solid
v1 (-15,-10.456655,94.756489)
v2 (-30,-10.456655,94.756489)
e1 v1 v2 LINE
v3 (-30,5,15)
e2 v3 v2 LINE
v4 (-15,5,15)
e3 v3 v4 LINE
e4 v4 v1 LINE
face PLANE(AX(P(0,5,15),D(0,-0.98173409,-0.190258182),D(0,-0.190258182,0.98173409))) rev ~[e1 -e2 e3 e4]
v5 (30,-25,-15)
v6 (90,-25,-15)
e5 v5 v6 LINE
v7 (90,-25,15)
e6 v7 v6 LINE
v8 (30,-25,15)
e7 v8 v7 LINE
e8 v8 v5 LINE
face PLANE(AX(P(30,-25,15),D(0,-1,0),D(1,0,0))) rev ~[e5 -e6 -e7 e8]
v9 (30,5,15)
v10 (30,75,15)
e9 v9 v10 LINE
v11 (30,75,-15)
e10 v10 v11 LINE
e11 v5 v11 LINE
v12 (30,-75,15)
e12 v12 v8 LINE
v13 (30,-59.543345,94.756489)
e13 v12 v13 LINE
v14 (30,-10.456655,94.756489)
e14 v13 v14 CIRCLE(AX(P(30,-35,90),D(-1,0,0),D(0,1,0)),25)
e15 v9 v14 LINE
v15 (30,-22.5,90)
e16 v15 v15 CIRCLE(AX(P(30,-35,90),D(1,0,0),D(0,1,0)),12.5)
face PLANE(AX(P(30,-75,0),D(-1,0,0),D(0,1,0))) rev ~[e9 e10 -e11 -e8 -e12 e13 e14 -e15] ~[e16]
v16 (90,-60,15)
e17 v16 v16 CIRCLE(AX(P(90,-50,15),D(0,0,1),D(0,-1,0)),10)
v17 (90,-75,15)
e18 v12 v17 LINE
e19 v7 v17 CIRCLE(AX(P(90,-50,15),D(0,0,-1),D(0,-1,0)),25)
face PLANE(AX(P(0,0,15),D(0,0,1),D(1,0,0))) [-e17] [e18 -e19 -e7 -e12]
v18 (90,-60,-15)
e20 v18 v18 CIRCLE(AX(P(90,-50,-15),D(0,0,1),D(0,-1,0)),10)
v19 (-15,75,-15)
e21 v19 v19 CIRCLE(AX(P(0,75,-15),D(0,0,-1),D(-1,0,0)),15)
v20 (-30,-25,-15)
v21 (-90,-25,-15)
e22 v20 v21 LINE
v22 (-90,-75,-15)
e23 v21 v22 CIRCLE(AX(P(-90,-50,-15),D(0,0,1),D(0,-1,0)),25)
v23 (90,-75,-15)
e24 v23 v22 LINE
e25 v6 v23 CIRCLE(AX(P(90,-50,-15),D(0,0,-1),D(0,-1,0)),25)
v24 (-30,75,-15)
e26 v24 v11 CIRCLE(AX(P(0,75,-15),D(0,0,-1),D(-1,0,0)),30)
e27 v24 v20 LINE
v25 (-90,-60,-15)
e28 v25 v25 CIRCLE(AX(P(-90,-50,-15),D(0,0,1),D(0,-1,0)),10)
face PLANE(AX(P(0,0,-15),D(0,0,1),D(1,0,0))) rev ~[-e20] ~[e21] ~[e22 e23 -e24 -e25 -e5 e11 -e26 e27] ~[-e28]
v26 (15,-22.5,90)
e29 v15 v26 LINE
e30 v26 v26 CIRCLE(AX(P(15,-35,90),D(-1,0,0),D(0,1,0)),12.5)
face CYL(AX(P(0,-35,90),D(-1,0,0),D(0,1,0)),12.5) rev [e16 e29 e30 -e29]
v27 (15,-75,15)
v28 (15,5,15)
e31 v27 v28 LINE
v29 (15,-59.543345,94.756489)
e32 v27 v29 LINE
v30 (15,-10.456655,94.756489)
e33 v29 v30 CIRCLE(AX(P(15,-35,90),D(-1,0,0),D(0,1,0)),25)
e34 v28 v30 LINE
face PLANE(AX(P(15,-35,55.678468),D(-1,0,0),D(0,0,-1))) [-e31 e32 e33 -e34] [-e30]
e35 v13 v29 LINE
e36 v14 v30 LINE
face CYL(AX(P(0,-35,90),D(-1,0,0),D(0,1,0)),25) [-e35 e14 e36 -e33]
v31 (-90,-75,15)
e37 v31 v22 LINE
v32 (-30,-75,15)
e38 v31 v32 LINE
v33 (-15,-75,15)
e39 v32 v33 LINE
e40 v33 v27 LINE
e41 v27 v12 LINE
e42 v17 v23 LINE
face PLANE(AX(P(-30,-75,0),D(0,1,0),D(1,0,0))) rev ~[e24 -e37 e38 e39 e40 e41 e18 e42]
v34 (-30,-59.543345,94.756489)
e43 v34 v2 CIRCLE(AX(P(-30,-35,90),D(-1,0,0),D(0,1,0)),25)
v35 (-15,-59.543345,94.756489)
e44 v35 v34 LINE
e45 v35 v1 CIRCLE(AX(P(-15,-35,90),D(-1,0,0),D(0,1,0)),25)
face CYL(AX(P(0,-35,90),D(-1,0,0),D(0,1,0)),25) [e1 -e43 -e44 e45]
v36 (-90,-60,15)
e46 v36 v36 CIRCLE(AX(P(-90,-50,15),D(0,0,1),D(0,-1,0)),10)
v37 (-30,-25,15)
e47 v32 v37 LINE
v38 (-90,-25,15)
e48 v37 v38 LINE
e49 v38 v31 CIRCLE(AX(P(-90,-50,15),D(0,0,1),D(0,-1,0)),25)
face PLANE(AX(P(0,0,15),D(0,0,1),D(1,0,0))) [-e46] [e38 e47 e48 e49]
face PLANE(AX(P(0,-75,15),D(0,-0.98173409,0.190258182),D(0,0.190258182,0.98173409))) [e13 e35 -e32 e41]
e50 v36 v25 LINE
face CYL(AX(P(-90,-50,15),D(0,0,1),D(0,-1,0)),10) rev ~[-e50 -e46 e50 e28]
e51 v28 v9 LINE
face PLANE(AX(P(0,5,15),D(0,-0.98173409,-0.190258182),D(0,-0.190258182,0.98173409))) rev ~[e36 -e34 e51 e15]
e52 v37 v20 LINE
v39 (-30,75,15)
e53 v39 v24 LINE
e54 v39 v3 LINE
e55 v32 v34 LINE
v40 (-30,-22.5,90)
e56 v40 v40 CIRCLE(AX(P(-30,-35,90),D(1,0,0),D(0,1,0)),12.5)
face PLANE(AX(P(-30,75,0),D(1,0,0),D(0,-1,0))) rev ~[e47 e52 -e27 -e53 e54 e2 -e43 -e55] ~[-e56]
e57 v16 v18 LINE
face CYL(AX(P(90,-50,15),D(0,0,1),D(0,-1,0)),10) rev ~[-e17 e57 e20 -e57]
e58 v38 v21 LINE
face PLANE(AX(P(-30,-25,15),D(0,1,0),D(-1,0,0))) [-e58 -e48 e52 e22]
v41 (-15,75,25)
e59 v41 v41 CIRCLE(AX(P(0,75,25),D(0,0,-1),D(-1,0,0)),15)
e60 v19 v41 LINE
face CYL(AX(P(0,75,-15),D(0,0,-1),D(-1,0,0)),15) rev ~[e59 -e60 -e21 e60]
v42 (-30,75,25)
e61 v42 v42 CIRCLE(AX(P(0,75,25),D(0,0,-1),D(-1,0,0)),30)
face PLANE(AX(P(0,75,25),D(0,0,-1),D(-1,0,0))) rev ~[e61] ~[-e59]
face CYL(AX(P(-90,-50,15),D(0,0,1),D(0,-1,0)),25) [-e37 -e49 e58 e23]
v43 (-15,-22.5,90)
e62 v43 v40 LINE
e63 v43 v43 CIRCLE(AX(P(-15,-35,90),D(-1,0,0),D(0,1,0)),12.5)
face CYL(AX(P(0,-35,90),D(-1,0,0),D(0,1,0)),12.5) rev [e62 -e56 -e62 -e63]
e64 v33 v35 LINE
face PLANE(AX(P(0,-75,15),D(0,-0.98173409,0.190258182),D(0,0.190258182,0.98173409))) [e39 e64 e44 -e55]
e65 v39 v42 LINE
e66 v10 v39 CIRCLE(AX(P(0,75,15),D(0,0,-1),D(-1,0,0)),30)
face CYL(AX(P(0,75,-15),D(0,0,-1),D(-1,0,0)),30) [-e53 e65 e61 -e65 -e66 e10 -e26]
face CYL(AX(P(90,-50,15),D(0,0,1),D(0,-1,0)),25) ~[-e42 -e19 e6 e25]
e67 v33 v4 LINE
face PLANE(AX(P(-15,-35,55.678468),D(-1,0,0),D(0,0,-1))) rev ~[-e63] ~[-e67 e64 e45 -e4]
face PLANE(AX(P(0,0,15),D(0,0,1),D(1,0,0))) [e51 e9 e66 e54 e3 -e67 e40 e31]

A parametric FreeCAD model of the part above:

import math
import FreeCAD as App
import Part
import Sketcher
Q = App.Units.Quantity

doc = App.newDocument("Part")
body = doc.addObject("PartDesign::Body", "Body")

sketch1 = body.newObject("Sketcher::SketchObject", "Sketch")
sketch1.AttachmentSupport = (doc.getObject("XY_Plane"), [""])
sketch1.MapMode = "FlatFace"
sketch1.addGeometry([
    Part.LineSegment(App.Vector(30, 75, 0), App.Vector(-30, 75, 0)),
    Part.LineSegment(App.Vector(-30, 75, 0), App.Vector(-30, -75, 0)),
    Part.LineSegment(App.Vector(-30, -75, 0), App.Vector(30, -75, 0)),
    Part.LineSegment(App.Vector(30, -75, 0), App.Vector(30, 75, 0)),
], False)
sketch1.addConstraint([
    Sketcher.Constraint("Coincident", 0, 2, 1, 1),
    Sketcher.Constraint("Coincident", 1, 2, 2, 1),
    Sketcher.Constraint("Coincident", 2, 2, 3, 1),
    Sketcher.Constraint("Coincident", 3, 2, 0, 1),
    Sketcher.Constraint("Horizontal", 0),
    Sketcher.Constraint("Vertical", 1),
    Sketcher.Constraint("Horizontal", 2),
    Sketcher.Constraint("Vertical", 3),
    Sketcher.Constraint("Symmetric", 0, 2, 2, 2, -1, 1),
    Sketcher.Constraint("DistanceX", 0, 2, 0, 1, Q("60 mm")),
    Sketcher.Constraint("DistanceY", 1, 2, 1, 1, Q("150 mm")),
])
pad1 = body.newObject("PartDesign::Pad", "Pad")
pad1.Profile = sketch1
pad1.Length = 30
pad1.Midplane = True

sketch2 = body.newObject("Sketcher::SketchObject", "Sketch001")
sketch2.AttachmentSupport = (doc.getObject("XY_Plane"), [""])
sketch2.MapMode = "FlatFace"
sketch2.AttachmentOffset = App.Placement(App.Vector(0, 0, -15), App.Rotation())
sketch2.addGeometry(Part.Circle(App.Vector(0, 75, 0), App.Vector(0, 0, 1), 30), False)
sketch2.addConstraint([
    Sketcher.Constraint("PointOnObject", 0, 3, -2),
    Sketcher.Constraint("Diameter", 0, Q("60 mm")),
    Sketcher.Constraint("DistanceY", -1, 1, 0, 3, Q("75 mm")),
])
pocket1 = body.newObject("PartDesign::Pocket", "Pocket")
pocket1.Profile = sketch2
pocket1.Length = 30
pocket1.Reversed = True

sketch3 = body.newObject("Sketcher::SketchObject", "Sketch002")
sketch3.AttachmentSupport = (doc.getObject("XY_Plane"), [""])
sketch3.MapMode = "FlatFace"
sketch3.AttachmentOffset = App.Placement(App.Vector(0, 0, -15), App.Rotation())
sketch3.addGeometry([
    Part.Circle(App.Vector(0, 75, 0), App.Vector(0, 0, 1), 30),
    Part.Circle(App.Vector(0, 75, 0), App.Vector(0, 0, 1), 15),
], False)
sketch3.addConstraint([
    Sketcher.Constraint("Coincident", 1, 3, 0, 3),
    Sketcher.Constraint("PointOnObject", 0, 3, -2),
    Sketcher.Constraint("Diameter", 0, Q("60 mm")),
    Sketcher.Constraint("Diameter", 1, Q("30 mm")),
    Sketcher.Constraint("DistanceY", -1, 1, 0, 3, Q("75 mm")),
])
pad2 = body.newObject("PartDesign::Pad", "Pad001")
pad2.Profile = sketch3
pad2.Length = 40

sketch4 = body.newObject("Sketcher::SketchObject", "Sketch003")
sketch4.AttachmentSupport = (doc.getObject("XY_Plane"), [""])
sketch4.MapMode = "FlatFace"
sketch4.AttachmentOffset = App.Placement(App.Vector(0, 0, 15), App.Rotation())
sketch4.addGeometry([
    Part.LineSegment(App.Vector(30, -75, 0), App.Vector(90, -75, 0)),
    Part.ArcOfCircle(Part.Circle(App.Vector(90, -50, 0), App.Vector(0, 0, 1), 25), math.radians(-90), math.radians(90)),
    Part.LineSegment(App.Vector(90, -25, 0), App.Vector(30, -25, 0)),
    Part.LineSegment(App.Vector(30, -25, 0), App.Vector(30, -75, 0)),
    Part.Circle(App.Vector(90, -50, 0), App.Vector(0, 0, 1), 10),
    Part.ArcOfCircle(Part.Circle(App.Vector(-90, -50, 0), App.Vector(0, 0, 1), 25), math.radians(90), math.radians(270)),
    Part.LineSegment(App.Vector(-90, -75, 0), App.Vector(-30, -75, 0)),
    Part.LineSegment(App.Vector(-30, -75, 0), App.Vector(-30, -25, 0)),
    Part.LineSegment(App.Vector(-30, -25, 0), App.Vector(-90, -25, 0)),
    Part.Circle(App.Vector(-90, -50, 0), App.Vector(0, 0, 1), 10),
], False)
sketch4.addConstraint([
    Sketcher.Constraint("Tangent", 0, 2, 1, 1),
    Sketcher.Constraint("Tangent", 1, 2, 2, 1),
    Sketcher.Constraint("Coincident", 2, 2, 3, 1),
    Sketcher.Constraint("Coincident", 3, 2, 0, 1),
    Sketcher.Constraint("Tangent", 5, 2, 6, 1),
    Sketcher.Constraint("Coincident", 6, 2, 7, 1),
    Sketcher.Constraint("Coincident", 7, 2, 8, 1),
    Sketcher.Constraint("Tangent", 8, 2, 5, 1),
    Sketcher.Constraint("Horizontal", 0),
    Sketcher.Constraint("Horizontal", 2),
    Sketcher.Constraint("Vertical", 3),
    Sketcher.Constraint("Horizontal", 6),
    Sketcher.Constraint("Vertical", 7),
    Sketcher.Constraint("Horizontal", 8),
    Sketcher.Constraint("Coincident", 4, 3, 1, 3),
    Sketcher.Constraint("Coincident", 9, 3, 5, 3),
    Sketcher.Constraint("Equal", 1, 5),
    Sketcher.Constraint("Equal", 4, 9),
    Sketcher.Constraint("Symmetric", 1, 3, 5, 3, -2),
    Sketcher.Constraint("Equal", 2, 6),
    Sketcher.Constraint("Diameter", 4, Q("20 mm")),
    Sketcher.Constraint("Radius", 1, Q("25 mm")),
    Sketcher.Constraint("DistanceX", 0, 1, 0, 2, Q("60 mm")),
    Sketcher.Constraint("DistanceX", -1, 1, 1, 3, Q("90 mm")),
    Sketcher.Constraint("DistanceY", 1, 3, -1, 1, Q("50 mm")),
])
pad3 = body.newObject("PartDesign::Pad", "Pad002")
pad3.Profile = sketch4
pad3.Length = 30
pad3.Reversed = True

sketch5 = body.newObject("Sketcher::SketchObject", "Sketch004")
sketch5.AttachmentSupport = (doc.getObject("YZ_Plane"), [""])
sketch5.MapMode = "FlatFace"
sketch5.addGeometry([
    Part.LineSegment(App.Vector(-60, 95, 0), App.Vector(-75, 15, 0)),
    Part.LineSegment(App.Vector(-75, 15, 0), App.Vector(5, 15, 0)),
    Part.LineSegment(App.Vector(5, 15, 0), App.Vector(-10, 95, 0)),
    Part.ArcOfCircle(Part.Circle(App.Vector(-35, 90, 0), App.Vector(0, 0, 1), 25), math.radians(11), math.radians(169)),
    Part.Circle(App.Vector(-35, 90, 0), App.Vector(0, 0, 1), 12),
], False)
sketch5.addConstraint([
    Sketcher.Constraint("Coincident", 0, 2, 1, 1),
    Sketcher.Constraint("Coincident", 1, 2, 2, 1),
    Sketcher.Constraint("Tangent", 2, 2, 3, 1),
    Sketcher.Constraint("Tangent", 3, 2, 0, 1),
    Sketcher.Constraint("Horizontal", 1),
    Sketcher.Constraint("Coincident", 4, 3, 3, 3),
    Sketcher.Constraint("Horizontal", 2, 2, 3, 2),
    Sketcher.Constraint("Diameter", 4, Q("25 mm")),
    Sketcher.Constraint("Radius", 3, Q("25 mm")),
    Sketcher.Constraint("DistanceX", 1, 1, 1, 2, Q("80 mm")),
    Sketcher.Constraint("DistanceX", 3, 3, -1, 1, Q("35 mm")),
    Sketcher.Constraint("DistanceY", -1, 1, 3, 3, Q("90 mm")),
    Sketcher.Constraint("DistanceY", -1, 1, 0, 2, Q("15 mm")),
])
pad4 = body.newObject("PartDesign::Pad", "Pad003")
pad4.Profile = sketch5
pad4.Length = 60
pad4.Midplane = True

sketch6 = body.newObject("Sketcher::SketchObject", "Sketch005")
sketch6.AttachmentSupport = (doc.getObject("YZ_Plane"), [""])
sketch6.MapMode = "FlatFace"
sketch6.addGeometry([
    Part.LineSegment(App.Vector(-60, 95, 0), App.Vector(-75, 15, 0)),
    Part.LineSegment(App.Vector(-75, 15, 0), App.Vector(5, 15, 0)),
    Part.LineSegment(App.Vector(5, 15, 0), App.Vector(-10, 95, 0)),
    Part.ArcOfCircle(Part.Circle(App.Vector(-35, 90, 0), App.Vector(0, 0, 1), 25), math.radians(11), math.radians(169)),
], False)
sketch6.addConstraint([
    Sketcher.Constraint("Coincident", 0, 2, 1, 1),
    Sketcher.Constraint("Coincident", 1, 2, 2, 1),
    Sketcher.Constraint("Tangent", 2, 2, 3, 1),
    Sketcher.Constraint("Tangent", 3, 2, 0, 1),
    Sketcher.Constraint("Horizontal", 1),
    Sketcher.Constraint("Horizontal", 2, 2, 3, 2),
    Sketcher.Constraint("Radius", 3, Q("25 mm")),
    Sketcher.Constraint("DistanceX", 1, 1, 1, 2, Q("80 mm")),
    Sketcher.Constraint("DistanceX", 3, 3, -1, 1, Q("35 mm")),
    Sketcher.Constraint("DistanceY", -1, 1, 3, 3, Q("90 mm")),
    Sketcher.Constraint("DistanceY", -1, 1, 0, 2, Q("15 mm")),
])
pocket2 = body.newObject("PartDesign::Pocket", "Pocket001")
pocket2.Profile = sketch6
pocket2.Length = 30
pocket2.Midplane = True

doc.recompute()
